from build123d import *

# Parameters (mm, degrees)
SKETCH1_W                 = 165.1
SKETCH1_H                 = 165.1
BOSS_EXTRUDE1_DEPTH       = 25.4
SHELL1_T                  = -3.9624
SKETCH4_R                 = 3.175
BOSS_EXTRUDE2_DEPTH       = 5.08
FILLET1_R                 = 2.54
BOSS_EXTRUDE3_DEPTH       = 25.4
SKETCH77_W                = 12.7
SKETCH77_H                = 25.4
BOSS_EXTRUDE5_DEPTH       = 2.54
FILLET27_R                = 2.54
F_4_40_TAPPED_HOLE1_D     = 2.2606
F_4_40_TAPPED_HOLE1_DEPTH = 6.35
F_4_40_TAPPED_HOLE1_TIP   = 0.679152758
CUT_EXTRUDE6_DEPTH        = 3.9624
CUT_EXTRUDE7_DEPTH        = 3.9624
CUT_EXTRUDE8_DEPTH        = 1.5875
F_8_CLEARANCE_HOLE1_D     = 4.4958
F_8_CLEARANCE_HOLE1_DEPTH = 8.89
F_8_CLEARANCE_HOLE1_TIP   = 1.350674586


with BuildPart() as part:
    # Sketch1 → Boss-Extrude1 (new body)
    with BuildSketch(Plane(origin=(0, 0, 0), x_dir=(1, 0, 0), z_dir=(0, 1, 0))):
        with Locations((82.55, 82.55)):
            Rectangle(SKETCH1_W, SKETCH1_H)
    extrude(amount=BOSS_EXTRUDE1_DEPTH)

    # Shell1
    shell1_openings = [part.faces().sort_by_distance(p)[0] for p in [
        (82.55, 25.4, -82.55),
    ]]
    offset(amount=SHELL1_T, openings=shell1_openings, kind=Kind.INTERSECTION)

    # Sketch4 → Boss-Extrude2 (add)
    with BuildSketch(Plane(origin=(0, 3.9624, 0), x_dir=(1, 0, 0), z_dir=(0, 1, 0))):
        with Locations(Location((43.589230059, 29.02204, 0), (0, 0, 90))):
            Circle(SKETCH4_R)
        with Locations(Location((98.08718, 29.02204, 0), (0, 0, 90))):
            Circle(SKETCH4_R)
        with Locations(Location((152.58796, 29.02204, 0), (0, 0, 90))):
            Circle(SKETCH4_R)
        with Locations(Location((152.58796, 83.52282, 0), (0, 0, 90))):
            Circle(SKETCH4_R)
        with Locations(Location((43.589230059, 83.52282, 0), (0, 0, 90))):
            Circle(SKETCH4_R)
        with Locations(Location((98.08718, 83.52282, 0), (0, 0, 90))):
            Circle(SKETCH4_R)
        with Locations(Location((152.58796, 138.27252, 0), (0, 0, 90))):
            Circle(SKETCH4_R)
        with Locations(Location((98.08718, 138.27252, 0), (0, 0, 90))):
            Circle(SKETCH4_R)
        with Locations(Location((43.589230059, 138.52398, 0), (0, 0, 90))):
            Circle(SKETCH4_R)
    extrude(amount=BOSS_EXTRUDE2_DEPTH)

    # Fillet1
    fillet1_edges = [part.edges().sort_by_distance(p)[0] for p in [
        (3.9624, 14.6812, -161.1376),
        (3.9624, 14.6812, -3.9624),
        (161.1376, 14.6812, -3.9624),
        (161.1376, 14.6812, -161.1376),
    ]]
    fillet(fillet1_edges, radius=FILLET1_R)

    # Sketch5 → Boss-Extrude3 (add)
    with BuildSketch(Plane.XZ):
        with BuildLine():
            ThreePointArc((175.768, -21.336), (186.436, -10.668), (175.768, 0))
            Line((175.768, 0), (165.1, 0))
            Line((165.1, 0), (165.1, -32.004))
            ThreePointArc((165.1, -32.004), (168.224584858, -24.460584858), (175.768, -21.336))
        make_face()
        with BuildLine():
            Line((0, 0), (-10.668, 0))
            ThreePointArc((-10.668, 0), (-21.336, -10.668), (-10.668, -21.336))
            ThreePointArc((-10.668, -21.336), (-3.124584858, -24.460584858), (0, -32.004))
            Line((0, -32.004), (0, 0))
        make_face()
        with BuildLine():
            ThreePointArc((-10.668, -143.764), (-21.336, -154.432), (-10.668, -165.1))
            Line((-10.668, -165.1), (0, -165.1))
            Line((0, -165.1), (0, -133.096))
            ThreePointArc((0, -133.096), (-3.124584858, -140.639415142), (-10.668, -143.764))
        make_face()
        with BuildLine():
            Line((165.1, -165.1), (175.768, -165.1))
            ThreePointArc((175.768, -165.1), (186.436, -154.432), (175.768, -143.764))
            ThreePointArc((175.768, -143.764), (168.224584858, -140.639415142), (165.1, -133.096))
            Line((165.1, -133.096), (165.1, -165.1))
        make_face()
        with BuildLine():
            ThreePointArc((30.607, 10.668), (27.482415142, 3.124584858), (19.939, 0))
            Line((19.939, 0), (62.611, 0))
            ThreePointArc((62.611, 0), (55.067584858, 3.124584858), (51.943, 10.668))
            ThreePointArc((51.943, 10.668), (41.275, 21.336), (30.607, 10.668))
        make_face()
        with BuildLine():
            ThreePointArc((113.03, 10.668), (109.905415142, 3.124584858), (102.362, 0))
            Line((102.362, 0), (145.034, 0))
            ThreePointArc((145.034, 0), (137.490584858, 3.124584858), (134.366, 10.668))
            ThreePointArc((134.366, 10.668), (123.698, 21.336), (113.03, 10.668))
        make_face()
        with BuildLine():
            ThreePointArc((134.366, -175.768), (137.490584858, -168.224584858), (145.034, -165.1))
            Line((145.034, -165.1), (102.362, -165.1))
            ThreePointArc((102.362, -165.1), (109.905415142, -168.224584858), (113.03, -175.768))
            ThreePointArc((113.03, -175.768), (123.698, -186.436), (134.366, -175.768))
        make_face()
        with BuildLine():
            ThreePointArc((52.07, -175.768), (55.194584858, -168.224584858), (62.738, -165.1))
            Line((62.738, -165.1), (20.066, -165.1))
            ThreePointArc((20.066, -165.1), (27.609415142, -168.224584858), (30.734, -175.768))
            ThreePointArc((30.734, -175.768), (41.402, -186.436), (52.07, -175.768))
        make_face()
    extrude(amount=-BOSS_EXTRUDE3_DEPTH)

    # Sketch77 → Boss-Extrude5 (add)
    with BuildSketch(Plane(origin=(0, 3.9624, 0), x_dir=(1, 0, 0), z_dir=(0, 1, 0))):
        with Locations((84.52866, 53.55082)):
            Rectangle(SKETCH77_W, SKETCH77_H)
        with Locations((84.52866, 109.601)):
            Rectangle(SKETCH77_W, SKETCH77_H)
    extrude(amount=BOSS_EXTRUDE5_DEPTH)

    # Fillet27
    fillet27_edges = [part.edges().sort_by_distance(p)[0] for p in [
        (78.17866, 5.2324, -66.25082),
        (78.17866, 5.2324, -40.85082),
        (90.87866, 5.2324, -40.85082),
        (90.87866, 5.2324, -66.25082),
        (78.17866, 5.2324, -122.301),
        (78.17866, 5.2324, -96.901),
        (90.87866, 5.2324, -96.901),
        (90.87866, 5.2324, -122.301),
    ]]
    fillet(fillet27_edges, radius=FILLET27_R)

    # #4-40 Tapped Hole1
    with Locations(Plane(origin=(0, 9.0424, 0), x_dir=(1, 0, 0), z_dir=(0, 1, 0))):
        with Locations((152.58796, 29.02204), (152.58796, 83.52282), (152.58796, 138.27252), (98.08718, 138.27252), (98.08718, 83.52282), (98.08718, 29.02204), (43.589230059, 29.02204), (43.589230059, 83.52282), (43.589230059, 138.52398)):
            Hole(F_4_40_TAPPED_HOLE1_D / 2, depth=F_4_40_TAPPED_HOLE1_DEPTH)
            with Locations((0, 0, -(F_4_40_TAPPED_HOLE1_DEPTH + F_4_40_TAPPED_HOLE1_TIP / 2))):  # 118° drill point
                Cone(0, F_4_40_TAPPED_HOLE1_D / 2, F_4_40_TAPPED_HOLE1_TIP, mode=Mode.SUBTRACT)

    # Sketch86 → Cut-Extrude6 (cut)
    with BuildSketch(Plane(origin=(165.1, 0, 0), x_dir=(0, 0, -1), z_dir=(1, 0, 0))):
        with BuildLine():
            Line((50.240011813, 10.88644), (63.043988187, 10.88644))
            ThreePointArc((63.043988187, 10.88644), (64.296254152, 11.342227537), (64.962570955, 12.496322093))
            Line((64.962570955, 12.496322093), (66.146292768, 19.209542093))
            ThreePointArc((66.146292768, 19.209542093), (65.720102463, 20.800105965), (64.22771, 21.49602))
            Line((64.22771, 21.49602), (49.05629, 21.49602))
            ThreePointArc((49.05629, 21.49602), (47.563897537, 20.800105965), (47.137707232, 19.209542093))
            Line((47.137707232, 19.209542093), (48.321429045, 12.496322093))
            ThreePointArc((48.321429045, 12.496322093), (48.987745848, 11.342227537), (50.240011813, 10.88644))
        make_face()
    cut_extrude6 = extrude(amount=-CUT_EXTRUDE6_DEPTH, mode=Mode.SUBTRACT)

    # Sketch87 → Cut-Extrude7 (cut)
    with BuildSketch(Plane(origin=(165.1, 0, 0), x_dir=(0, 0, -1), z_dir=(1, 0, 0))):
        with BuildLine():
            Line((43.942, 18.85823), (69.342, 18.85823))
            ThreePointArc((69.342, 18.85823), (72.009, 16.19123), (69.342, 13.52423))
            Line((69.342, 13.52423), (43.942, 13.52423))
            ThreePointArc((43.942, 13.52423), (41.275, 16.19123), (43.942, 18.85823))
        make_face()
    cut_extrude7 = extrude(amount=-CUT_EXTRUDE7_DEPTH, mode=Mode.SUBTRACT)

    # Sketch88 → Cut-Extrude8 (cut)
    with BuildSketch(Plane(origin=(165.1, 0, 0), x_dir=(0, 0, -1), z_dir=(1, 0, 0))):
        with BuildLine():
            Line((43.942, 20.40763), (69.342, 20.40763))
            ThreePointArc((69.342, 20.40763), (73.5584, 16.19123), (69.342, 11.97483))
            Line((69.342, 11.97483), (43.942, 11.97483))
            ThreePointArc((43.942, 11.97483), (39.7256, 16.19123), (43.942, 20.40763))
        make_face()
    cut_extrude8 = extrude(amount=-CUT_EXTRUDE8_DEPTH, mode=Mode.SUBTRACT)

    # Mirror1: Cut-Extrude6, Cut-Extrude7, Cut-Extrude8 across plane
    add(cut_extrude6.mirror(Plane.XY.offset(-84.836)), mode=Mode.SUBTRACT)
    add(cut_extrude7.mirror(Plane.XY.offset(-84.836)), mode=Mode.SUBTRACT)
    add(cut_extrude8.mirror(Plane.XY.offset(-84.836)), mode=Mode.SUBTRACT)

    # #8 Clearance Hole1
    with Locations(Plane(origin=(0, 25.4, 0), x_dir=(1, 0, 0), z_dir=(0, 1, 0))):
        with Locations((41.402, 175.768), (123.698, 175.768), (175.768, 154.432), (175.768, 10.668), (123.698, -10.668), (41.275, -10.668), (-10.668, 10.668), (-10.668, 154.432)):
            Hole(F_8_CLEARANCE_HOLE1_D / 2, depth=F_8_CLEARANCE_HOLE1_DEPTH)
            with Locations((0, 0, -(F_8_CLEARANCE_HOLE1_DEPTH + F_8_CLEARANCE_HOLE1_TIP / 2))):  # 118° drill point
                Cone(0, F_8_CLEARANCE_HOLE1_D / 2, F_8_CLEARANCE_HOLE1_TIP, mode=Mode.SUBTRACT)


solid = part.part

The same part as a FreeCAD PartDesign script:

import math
import FreeCAD as App
import Part
import Sketcher
from FreeCAD import Vector
Q = App.Units.Quantity


def edges_at(feature, points):
    """Names of the edges that pass closest to the given points."""
    edges = feature.Shape.Edges
    near = lambda p: min(range(len(edges)), key=lambda i: edges[i].distToShape(Part.Vertex(*p))[0])
    return sorted({f"Edge{near(p) + 1}" for p in points})


def faces_at(feature, points):
    """Names of the faces that lie closest to the given points."""
    faces = feature.Shape.Faces
    near = lambda p: min(range(len(faces)), key=lambda i: faces[i].distToShape(Part.Vertex(*p))[0])
    return sorted({f"Face{near(p) + 1}" for p in points})


def add_polygon(sketch, points):
    """Adds a closed chain of lines whose ends are joined by coincident constraints."""
    first, n = sketch.GeometryCount, len(points)
    for a, b in zip(points, points[1:] + points[:1]):
        sketch.addGeometry(Part.LineSegment(App.Vector(*a, 0), App.Vector(*b, 0)), False)
    for i in range(n):
        sketch.addConstraint(Sketcher.Constraint("Coincident", first + i, 2, first + (i + 1) % n, 1))

doc = App.newDocument("Part")
body = doc.addObject("PartDesign::Body", "Body")

sketch1 = body.newObject("Sketcher::SketchObject", "Sketch")
sketch1.AttachmentSupport = (doc.getObject("XZ_Plane"), [""])
sketch1.MapMode = "FlatFace"
add_polygon(sketch1, [(0, -165), (0, 0), (165, 0), (165, -165)])
sketch1.addConstraint([
    Sketcher.Constraint("Vertical", 0),
    Sketcher.Constraint("Horizontal", 1),
    Sketcher.Constraint("Vertical", 2),
    Sketcher.Constraint("Horizontal", 3),
    Sketcher.Constraint("Coincident", 0, 2, -1, 1),
    Sketcher.Constraint("Equal", 3, 0),
    Sketcher.Constraint("DistanceX", 1, 1, 1, 2, Q("6.5 in")),
])
pad1 = body.newObject("PartDesign::Pad", "Pad")
pad1.Profile = sketch1
pad1.Length = Q("1 in")
pad1.Reversed = True
doc.recompute()

thickness = body.newObject("PartDesign::Thickness", "Thickness")
thickness.Base = (pad1, faces_at(pad1, [(82.55, 25.4, -82.55)]))
thickness.Value = Q("0.156 in")
thickness.Reversed = True
thickness.Join = "Intersection"

sketch2 = body.newObject("Sketcher::SketchObject", "Sketch001")
sketch2.AttachmentSupport = (doc.getObject("XZ_Plane"), [""])
sketch2.MapMode = "FlatFace"
sketch2.AttachmentOffset = App.Placement(Vector(0, 0, -0.156 * 25.4), App.Rotation())
sketch2.addGeometry([
    Part.Circle(Vector(43.6, -29, 0), Vector(0, 0, 1), 3.2),
    Part.Circle(Vector(98.1, -29, 0), Vector(0, 0, 1), 3.2),
    Part.Circle(Vector(152.6, -29, 0), Vector(0, 0, 1), 3.2),
    Part.Circle(Vector(152.6, -83.5, 0), Vector(0, 0, 1), 3.2),
    Part.Circle(Vector(43.6, -83.5, 0), Vector(0, 0, 1), 3.2),
    Part.Circle(Vector(98.1, -83.5, 0), Vector(0, 0, 1), 3.2),
    Part.Circle(Vector(152.6, -138.3, 0), Vector(0, 0, 1), 3.2),
    Part.Circle(Vector(98.1, -138.3, 0), Vector(0, 0, 1), 3.2),
    Part.Circle(Vector(43.6, -138.5, 0), Vector(0, 0, 1), 3.2),
], False)
sketch2.addConstraint([
    Sketcher.Constraint("Equal", 0, 1),
    Sketcher.Constraint("Equal", 1, 2),
    Sketcher.Constraint("Equal", 2, 3),
    Sketcher.Constraint("Equal", 3, 4),
    Sketcher.Constraint("Equal", 4, 5),
    Sketcher.Constraint("Equal", 5, 6),
    Sketcher.Constraint("Equal", 6, 7),
    Sketcher.Constraint("Equal", 7, 8),
    Sketcher.Constraint("Horizontal", 0, 3, 1, 3),
    Sketcher.Constraint("Horizontal", 1, 3, 2, 3),
    Sketcher.Constraint("Horizontal", 3, 3, 4, 3),
    Sketcher.Constraint("Horizontal", 4, 3, 5, 3),
    Sketcher.Constraint("Horizontal", 6, 3, 7, 3),
    Sketcher.Constraint("Vertical", 2, 3, 3, 3),
    Sketcher.Constraint("Vertical", 0, 3, 4, 3),
    Sketcher.Constraint("Vertical", 1, 3, 5, 3),
    Sketcher.Constraint("Vertical", 3, 3, 6, 3),
    Sketcher.Constraint("Vertical", 5, 3, 7, 3),
    Sketcher.Constraint("Vertical", 4, 3, 8, 3),
    Sketcher.Constraint("Diameter", 0, Q("0.25 in")),
    Sketcher.Constraint("DistanceY", 0, 3, -1, 1, Q("1.1426 in")),
    Sketcher.Constraint("DistanceX", -1, 1, 1, 3, Q("3.8617 in")),
    Sketcher.Constraint("DistanceX", -1, 1, 2, 3, Q("6.0074 in")),
    Sketcher.Constraint("DistanceY", 3, 3, -1, 1, Q("3.2883 in")),
    Sketcher.Constraint("DistanceY", 6, 3, -1, 1, Q("5.4438 in")),
    Sketcher.Constraint("DistanceY", 8, 3, -1, 1, Q("5.4537 in")),
    Sketcher.Constraint("DistanceX", -1, 1, 0, 3, 43.58923),
])
pad2 = body.newObject("PartDesign::Pad", "Pad001")
pad2.Profile = sketch2
pad2.Length = Q("0.2 in")
pad2.Reversed = True
doc.recompute()

fillet = body.newObject("PartDesign::Fillet", "Fillet")
fillet.Base = (pad2, edges_at(pad2, [
    (3.962, 14.681, -161.138),
    (3.962, 14.681, -3.962),
    (161.138, 14.681, -3.962),
    (161.138, 14.681, -161.138),
]))
fillet.Radius = Q("0.1 in")

sketch3 = body.newObject("Sketcher::SketchObject", "Sketch002")
sketch3.AttachmentSupport = (doc.getObject("XZ_Plane"), [""])
sketch3.MapMode = "FlatFace"
sketch3.addGeometry([
    Part.ArcOfCircle(Part.Circle(Vector(176, -11, 0), Vector(0, 0, 1), 11), math.radians(-90), math.radians(90)),
    Part.LineSegment(Vector(176, 0, 0), Vector(165, 0, 0)),
    Part.LineSegment(Vector(165, 0, 0), Vector(165, -32, 0)),
    Part.ArcOfCircle(Part.Circle(Vector(176, -32, 0), Vector(0, 0, 1), 11), math.radians(90), math.radians(180)),
    Part.LineSegment(Vector(0, 0, 0), Vector(-11, 0, 0)),
    Part.ArcOfCircle(Part.Circle(Vector(-11, -11, 0), Vector(0, 0, 1), 11), math.radians(90), math.radians(270)),
    Part.ArcOfCircle(Part.Circle(Vector(-11, -32, 0), Vector(0, 0, 1), 11), math.radians(0), math.radians(90)),
    Part.LineSegment(Vector(0, -32, 0), Vector(0, 0, 0)),
    Part.ArcOfCircle(Part.Circle(Vector(-11, -154, 0), Vector(0, 0, 1), 11), math.radians(90), math.radians(270)),
    Part.LineSegment(Vector(-11, -165, 0), Vector(0, -165, 0)),
    Part.LineSegment(Vector(0, -165, 0), Vector(0, -133, 0)),
    Part.ArcOfCircle(Part.Circle(Vector(-11, -133, 0), Vector(0, 0, 1), 11), math.radians(-90), math.radians(0)),
    Part.LineSegment(Vector(165, -165, 0), Vector(176, -165, 0)),
    Part.ArcOfCircle(Part.Circle(Vector(176, -154, 0), Vector(0, 0, 1), 11), math.radians(-90), math.radians(90)),
    Part.ArcOfCircle(Part.Circle(Vector(176, -133, 0), Vector(0, 0, 1), 11), math.radians(180), math.radians(270)),
    Part.LineSegment(Vector(165, -133, 0), Vector(165, -165, 0)),
    Part.ArcOfCircle(Part.Circle(Vector(20, 11, 0), Vector(0, 0, 1), 11), math.radians(-90), math.radians(0)),
    Part.LineSegment(Vector(20, 0, 0), Vector(63, 0, 0)),
    Part.ArcOfCircle(Part.Circle(Vector(63, 11, 0), Vector(0, 0, 1), 11), math.radians(180), math.radians(270)),
    Part.ArcOfCircle(Part.Circle(Vector(41, 11, 0), Vector(0, 0, 1), 11), math.radians(0), math.radians(180)),
    Part.ArcOfCircle(Part.Circle(Vector(102, 11, 0), Vector(0, 0, 1), 11), math.radians(-90), math.radians(0)),
    Part.LineSegment(Vector(102, 0, 0), Vector(145, 0, 0)),
    Part.ArcOfCircle(Part.Circle(Vector(145, 11, 0), Vector(0, 0, 1), 11), math.radians(180), math.radians(270)),
    Part.ArcOfCircle(Part.Circle(Vector(124, 11, 0), Vector(0, 0, 1), 11), math.radians(0), math.radians(180)),
    Part.ArcOfCircle(Part.Circle(Vector(145, -176, 0), Vector(0, 0, 1), 11), math.radians(90), math.radians(180)),
    Part.LineSegment(Vector(145, -165, 0), Vector(102, -165, 0)),
    Part.ArcOfCircle(Part.Circle(Vector(102, -176, 0), Vector(0, 0, 1), 11), math.radians(0), math.radians(90)),
    Part.ArcOfCircle(Part.Circle(Vector(124, -176, 0), Vector(0, 0, 1), 11), math.radians(180), math.radians(360)),
    Part.ArcOfCircle(Part.Circle(Vector(63, -176, 0), Vector(0, 0, 1), 11), math.radians(90), math.radians(180)),
    Part.LineSegment(Vector(63, -165, 0), Vector(20, -165, 0)),
    Part.ArcOfCircle(Part.Circle(Vector(20, -176, 0), Vector(0, 0, 1), 11), math.radians(0), math.radians(90)),
    Part.ArcOfCircle(Part.Circle(Vector(41, -176, 0), Vector(0, 0, 1), 11), math.radians(180), math.radians(360)),
], False)
sketch3.addConstraint([
    Sketcher.Constraint("Tangent", 0, 2, 1, 1),
    Sketcher.Constraint("Coincident", 1, 2, 2, 1),
    Sketcher.Constraint("Tangent", 2, 2, 3, 2),
    Sketcher.Constraint("Tangent", 3, 1, 0, 1),
    Sketcher.Constraint("Tangent", 4, 2, 5, 1),
    Sketcher.Constraint("Tangent", 5, 2, 6, 2),
    Sketcher.Constraint("Tangent", 6, 1, 7, 1),
    Sketcher.Constraint("Coincident", 7, 2, 4, 1),
    Sketcher.Constraint("Tangent", 8, 2, 9, 1),
    Sketcher.Constraint("Coincident", 9, 2, 10, 1),
    Sketcher.Constraint("Tangent", 10, 2, 11, 2),
    Sketcher.Constraint("Tangent", 11, 1, 8, 1),
    Sketcher.Constraint("Tangent", 12, 2, 13, 1),
    Sketcher.Constraint("Tangent", 13, 2, 14, 2),
    Sketcher.Constraint("Tangent", 14, 1, 15, 1),
    Sketcher.Constraint("Coincident", 15, 2, 12, 1),
    Sketcher.Constraint("Tangent", 16, 1, 17, 1),
    Sketcher.Constraint("Tangent", 17, 2, 18, 2),
    Sketcher.Constraint("Tangent", 18, 1, 19, 1),
    Sketcher.Constraint("Tangent", 19, 2, 16, 2),
    Sketcher.Constraint("Tangent", 20, 1, 21, 1),
    Sketcher.Constraint("Tangent", 21, 2, 22, 2),
    Sketcher.Constraint("Tangent", 22, 1, 23, 1),
    Sketcher.Constraint("Tangent", 23, 2, 20, 2),
    Sketcher.Constraint("Tangent", 24, 1, 25, 1),
    Sketcher.Constraint("Tangent", 25, 2, 26, 2),
    Sketcher.Constraint("Tangent", 26, 1, 27, 1),
    Sketcher.Constraint("Tangent", 27, 2, 24, 2),
    Sketcher.Constraint("Tangent", 28, 1, 29, 1),
    Sketcher.Constraint("Tangent", 29, 2, 30, 2),
    Sketcher.Constraint("Tangent", 30, 1, 31, 1),
    Sketcher.Constraint("Tangent", 31, 2, 28, 2),
    Sketcher.Constraint("Horizontal", 1),
    Sketcher.Constraint("Vertical", 2),
    Sketcher.Constraint("Horizontal", 4),
    Sketcher.Constraint("Vertical", 7),
    Sketcher.Constraint("Horizontal", 9),
    Sketcher.Constraint("Vertical", 10),
    Sketcher.Constraint("Horizontal", 12),
    Sketcher.Constraint("Vertical", 15),
    Sketcher.Constraint("Horizontal", 17),
    Sketcher.Constraint("Horizontal", 21),
    Sketcher.Constraint("Horizontal", 25),
    Sketcher.Constraint("Horizontal", 29),
    Sketcher.Constraint("Coincident", 7, 2, -1, 1),
    Sketcher.Constraint("Equal", 0, 3),
    Sketcher.Constraint("Equal", 3, 5),
    Sketcher.Constraint("Equal", 5, 6),
    Sketcher.Constraint("Equal", 6, 8),
    Sketcher.Constraint("Equal", 8, 11),
    Sketcher.Constraint("Equal", 11, 13),
    Sketcher.Constraint("Equal", 13, 14),
    Sketcher.Constraint("Equal", 14, 16),
    Sketcher.Constraint("Equal", 16, 18),
    Sketcher.Constraint("Equal", 18, 19),
    Sketcher.Constraint("Equal", 19, 20),
    Sketcher.Constraint("Equal", 20, 22),
    Sketcher.Constraint("Equal", 22, 23),
    Sketcher.Constraint("Equal", 23, 24),
    Sketcher.Constraint("Equal", 24, 26),
    Sketcher.Constraint("Equal", 26, 27),
    Sketcher.Constraint("Equal", 27, 28),
    Sketcher.Constraint("Equal", 28, 30),
    Sketcher.Constraint("Equal", 30, 31),
    Sketcher.Constraint("PointOnObject", 0, 2, -1),
    Sketcher.Constraint("PointOnObject", 9, 2, -2),
    Sketcher.Constraint("PointOnObject", 16, 1, -1),
    Sketcher.Constraint("PointOnObject", 20, 1, -1),
    Sketcher.Constraint("Horizontal", 8, 3, 13, 3),
    Sketcher.Constraint("Horizontal", 18, 3, 19, 3),
    Sketcher.Constraint("Horizontal", 22, 3, 23, 3),
    Sketcher.Constraint("Horizontal", 26, 3, 27, 3),
    Sketcher.Constraint("Horizontal", 27, 3, 28, 3),
    Sketcher.Constraint("Horizontal", 30, 3, 31, 3),
    Sketcher.Constraint("Horizontal", 15, 2, 24, 1),
    Sketcher.Constraint("Vertical", 0, 3, 3, 3),
    Sketcher.Constraint("Vertical", 5, 3, 6, 3),
    Sketcher.Constraint("Vertical", 6, 3, 8, 3),
    Sketcher.Constraint("Vertical", 3, 3, 13, 3),
    Sketcher.Constraint("Vertical", 13, 3, 14, 3),
    Sketcher.Constraint("Vertical", 22, 3, 24, 3),
    Sketcher.Constraint("Radius", 0, Q("0.42 in")),
    Sketcher.Constraint("DistanceX", -1, 1, 1, 2, Q("6.5 in")),
    Sketcher.Constraint("DistanceY", 8, 2, -1, 1, Q("6.5 in")),
    Sketcher.Constraint("DistanceX", 28, 3, 27, 3, Q("2.4 in")),
    Sketcher.Constraint("DistanceX", -1, 1, 20, 3, Q("4.03 in")),
    Sketcher.Constraint("DistanceX", -1, 1, 16, 3, Q("0.785 in")),
])
pad3 = body.newObject("PartDesign::Pad", "Pad002")
pad3.Profile = sketch3
pad3.Length = Q("1 in")
pad3.Reversed = True

sketch4 = body.newObject("Sketcher::SketchObject", "Sketch003")
sketch4.AttachmentSupport = (doc.getObject("XZ_Plane"), [""])
sketch4.MapMode = "FlatFace"
sketch4.AttachmentOffset = App.Placement(Vector(0, 0, -0.156 * 25.4), App.Rotation())
add_polygon(sketch4, [(78, -66), (78, -41), (91, -41), (91, -66)])
add_polygon(sketch4, [(78, -122), (78, -97), (91, -97), (91, -122)])
sketch4.addConstraint([
    Sketcher.Constraint("Vertical", 0),
    Sketcher.Constraint("Horizontal", 1),
    Sketcher.Constraint("Vertical", 2),
    Sketcher.Constraint("Horizontal", 3),
    Sketcher.Constraint("Vertical", 4),
    Sketcher.Constraint("Horizontal", 5),
    Sketcher.Constraint("Vertical", 6),
    Sketcher.Constraint("Horizontal", 7),
    Sketcher.Constraint("Vertical", 3, 2, 4, 2),
    Sketcher.Constraint("Vertical", 2, 2, 5, 2),
    Sketcher.Constraint("Equal", 2, 4),
    Sketcher.Constraint("DistanceY", 0, 1, 0, 2, Q("1 in")),
    Sketcher.Constraint("DistanceX", 1, 1, 1, 2, Q("0.5 in")),
    Sketcher.Constraint("DistanceY", 4, 2, -1, 1, Q("3.815 in")),
    Sketcher.Constraint("DistanceX", -1, 1, 0, 2, Q("3.0779 in")),
    Sketcher.Constraint("DistanceY", 0, 2, -1, 1, Q("1.6083 in")),
])
pad4 = body.newObject("PartDesign::Pad", "Pad003")
pad4.Profile = sketch4
pad4.Length = Q("0.1 in")
pad4.Reversed = True
doc.recompute()

fillet2 = body.newObject("PartDesign::Fillet", "Fillet001")
fillet2.Base = (pad4, edges_at(pad4, [
    (78.179, 5.232, -66.251),
    (78.179, 5.232, -40.851),
    (90.879, 5.232, -40.851),
    (90.879, 5.232, -66.251),
    (78.179, 5.232, -122.301),
    (78.179, 5.232, -96.901),
    (90.879, 5.232, -96.901),
    (90.879, 5.232, -122.301),
]))
fillet2.Radius = Q("0.1 in")

sketch5 = body.newObject("Sketcher::SketchObject", "Sketch004")
sketch5.AttachmentSupport = (doc.getObject("XZ_Plane"), [""])
sketch5.MapMode = "FlatFace"
sketch5.AttachmentOffset = App.Placement(Vector(0, 0, -0.356 * 25.4), App.Rotation())
sketch5.addGeometry([
    Part.Circle(Vector(152.6, -29, 0), Vector(0, 0, 1), 1.1),
    Part.Circle(Vector(152.6, -83.5, 0), Vector(0, 0, 1), 1.1),
    Part.Circle(Vector(152.6, -138.3, 0), Vector(0, 0, 1), 1.1),
    Part.Circle(Vector(98.1, -138.3, 0), Vector(0, 0, 1), 1.1),
    Part.Circle(Vector(98.1, -83.5, 0), Vector(0, 0, 1), 1.1),
    Part.Circle(Vector(98.1, -29, 0), Vector(0, 0, 1), 1.1),
    Part.Circle(Vector(43.6, -29, 0), Vector(0, 0, 1), 1.1),
    Part.Circle(Vector(43.6, -83.5, 0), Vector(0, 0, 1), 1.1),
    Part.Circle(Vector(43.6, -138.5, 0), Vector(0, 0, 1), 1.1),
], False)
sketch5.addConstraint([
    Sketcher.Constraint("Equal", 0, 1),
    Sketcher.Constraint("Equal", 1, 2),
    Sketcher.Constraint("Equal", 2, 3),
    Sketcher.Constraint("Equal", 3, 4),
    Sketcher.Constraint("Equal", 4, 5),
    Sketcher.Constraint("Equal", 5, 6),
    Sketcher.Constraint("Equal", 6, 7),
    Sketcher.Constraint("Equal", 7, 8),
    Sketcher.Constraint("Horizontal", 2, 3, 3, 3),
    Sketcher.Constraint("Horizontal", 1, 3, 4, 3),
    Sketcher.Constraint("Horizontal", 0, 3, 5, 3),
    Sketcher.Constraint("Horizontal", 5, 3, 6, 3),
    Sketcher.Constraint("Horizontal", 4, 3, 7, 3),
    Sketcher.Constraint("Vertical", 0, 3, 1, 3),
    Sketcher.Constraint("Vertical", 1, 3, 2, 3),
    Sketcher.Constraint("Vertical", 3, 3, 4, 3),
    Sketcher.Constraint("Vertical", 4, 3, 5, 3),
    Sketcher.Constraint("Vertical", 6, 3, 7, 3),
    Sketcher.Constraint("Vertical", 7, 3, 8, 3),
    Sketcher.Constraint("Diameter", 0, Q("0.089 in")),
    Sketcher.Constraint("DistanceX", -1, 1, 0, 3, Q("6.0074 in")),
    Sketcher.Constraint("DistanceY", 0, 3, -1, 1, Q("1.1426 in")),
    Sketcher.Constraint("DistanceY", 1, 3, -1, 1, Q("3.2883 in")),
    Sketcher.Constraint("DistanceY", 2, 3, -1, 1, Q("5.4438 in")),
    Sketcher.Constraint("DistanceX", -1, 1, 3, 3, Q("3.8617 in")),
    Sketcher.Constraint("DistanceY", 8, 3, -1, 1, Q("5.4537 in")),
    Sketcher.Constraint("DistanceX", -1, 1, 6, 3, 43.58923),
])
doc.recompute()
hole = body.newObject("PartDesign::Hole", "Hole")
hole.Profile = sketch5
hole.ThreadType = "None"
hole.Diameter = Q("0.089 in")
hole.DepthType = "Dimension"
hole.Depth = Q("0.25 in")
hole.DrillPoint = "Angled"
hole.DrillPointAngle = 118
hole.Reversed = True

sketch6 = body.newObject("Sketcher::SketchObject", "Sketch005")
sketch6.AttachmentSupport = (doc.getObject("YZ_Plane"), [""])
sketch6.MapMode = "FlatFace"
sketch6.AttachmentOffset = App.Placement(Vector(0, 0, 6.5 * 25.4), App.Rotation())
sketch6.addGeometry([
    Part.LineSegment(Vector(10.9, -50.2, 0), Vector(10.9, -63, 0)),
    Part.ArcOfCircle(Part.Circle(Vector(12.8, -63, 0), Vector(0, 0, 1), 1.9), math.radians(-180), math.radians(-100)),
    Part.LineSegment(Vector(12.5, -65, 0), Vector(19.2, -66.1, 0)),
    Part.ArcOfCircle(Part.Circle(Vector(19.5, -64.2, 0), Vector(0, 0, 1), 1.9), math.radians(-100), math.radians(0)),
    Part.LineSegment(Vector(21.5, -64.2, 0), Vector(21.5, -49.1, 0)),
    Part.ArcOfCircle(Part.Circle(Vector(19.5, -49.1, 0), Vector(0, 0, 1), 1.9), math.radians(0), math.radians(100)),
    Part.LineSegment(Vector(19.2, -47.1, 0), Vector(12.5, -48.3, 0)),
    Part.ArcOfCircle(Part.Circle(Vector(12.8, -50.2, 0), Vector(0, 0, 1), 1.9), math.radians(100), math.radians(180)),
], False)
sketch6.addConstraint([
    Sketcher.Constraint("Tangent", 0, 2, 1, 1),
    Sketcher.Constraint("Tangent", 1, 2, 2, 1),
    Sketcher.Constraint("Tangent", 2, 2, 3, 1),
    Sketcher.Constraint("Tangent", 3, 2, 4, 1),
    Sketcher.Constraint("Tangent", 4, 2, 5, 1),
    Sketcher.Constraint("Tangent", 5, 2, 6, 1),
    Sketcher.Constraint("Tangent", 6, 2, 7, 1),
    Sketcher.Constraint("Tangent", 7, 2, 0, 1),
    Sketcher.Constraint("Vertical", 0),
    Sketcher.Constraint("Vertical", 4),
    Sketcher.Constraint("Equal", 1, 3),
    Sketcher.Constraint("Equal", 3, 5),
    Sketcher.Constraint("Equal", 5, 7),
    Sketcher.Constraint("Vertical", 2, 2, 5, 2),
    Sketcher.Constraint("Angle", 2, Q("-10 deg")),
    Sketcher.Constraint("Radius", 1, Q("0.0767 in")),
    Sketcher.Constraint("DistanceY", 4, 1, 4, 2, Q("0.5973 in")),
    Sketcher.Constraint("DistanceX", 0, 2, 3, 3, Q("0.341 in")),
    Sketcher.Constraint("DistanceX", -1, 1, 1, 3, Q("0.5053 in")),
    Sketcher.Constraint("DistanceY", 1, 3, -1, 1, 63.043988),
])
pocket1 = body.newObject("PartDesign::Pocket", "Pocket")
pocket1.Profile = sketch6
pocket1.Length = Q("0.156 in")

sketch7 = body.newObject("Sketcher::SketchObject", "Sketch006")
sketch7.AttachmentSupport = (doc.getObject("YZ_Plane"), [""])
sketch7.MapMode = "FlatFace"
sketch7.AttachmentOffset = App.Placement(Vector(0, 0, 6.5 * 25.4), App.Rotation())
sketch7.addGeometry([
    Part.LineSegment(Vector(18.9, -69.3, 0), Vector(18.9, -43.9, 0)),
    Part.ArcOfCircle(Part.Circle(Vector(16.2, -43.9, 0), Vector(0, 0, 1), 2.7), math.radians(0), math.radians(180)),
    Part.LineSegment(Vector(13.5, -43.9, 0), Vector(13.5, -69.3, 0)),
    Part.ArcOfCircle(Part.Circle(Vector(16.2, -69.3, 0), Vector(0, 0, 1), 2.7), math.radians(180), math.radians(360)),
], False)
sketch7.addConstraint([
    Sketcher.Constraint("Tangent", 0, 2, 1, 1),
    Sketcher.Constraint("Tangent", 1, 2, 2, 1),
    Sketcher.Constraint("Tangent", 2, 2, 3, 1),
    Sketcher.Constraint("Tangent", 3, 2, 0, 1),
    Sketcher.Constraint("Vertical", 0),
    Sketcher.Constraint("Vertical", 2),
    Sketcher.Constraint("DistanceY", 0, 1, 0, 2, Q("1 in")),
    Sketcher.Constraint("Radius", 1, Q("0.105 in")),
    Sketcher.Constraint("DistanceY", 1, 3, -1, 1, Q("1.73 in")),
    Sketcher.Constraint("DistanceX", -1, 1, 1, 3, 16.19123),
])
pocket2 = body.newObject("PartDesign::Pocket", "Pocket001")
pocket2.Profile = sketch7
pocket2.Length = Q("0.156 in")

sketch8 = body.newObject("Sketcher::SketchObject", "Sketch007")
sketch8.AttachmentSupport = (doc.getObject("YZ_Plane"), [""])
sketch8.MapMode = "FlatFace"
sketch8.AttachmentOffset = App.Placement(Vector(0, 0, 6.5 * 25.4), App.Rotation())
sketch8.addGeometry([
    Part.LineSegment(Vector(20.4, -69.3, 0), Vector(20.4, -43.9, 0)),
    Part.ArcOfCircle(Part.Circle(Vector(16.2, -43.9, 0), Vector(0, 0, 1), 4.2), math.radians(0), math.radians(180)),
    Part.LineSegment(Vector(12, -43.9, 0), Vector(12, -69.3, 0)),
    Part.ArcOfCircle(Part.Circle(Vector(16.2, -69.3, 0), Vector(0, 0, 1), 4.2), math.radians(180), math.radians(360)),
], False)
sketch8.addConstraint([
    Sketcher.Constraint("Tangent", 0, 2, 1, 1),
    Sketcher.Constraint("Tangent", 1, 2, 2, 1),
    Sketcher.Constraint("Tangent", 2, 2, 3, 1),
    Sketcher.Constraint("Tangent", 3, 2, 0, 1),
    Sketcher.Constraint("Vertical", 0),
    Sketcher.Constraint("Vertical", 2),
    Sketcher.Constraint("DistanceY", 0, 1, 0, 2, Q("1 in")),
    Sketcher.Constraint("Radius", 1, Q("0.166 in")),
    Sketcher.Constraint("DistanceY", 1, 3, -1, 1, Q("1.73 in")),
    Sketcher.Constraint("DistanceX", -1, 1, 1, 3, 16.19123),
])
pocket3 = body.newObject("PartDesign::Pocket", "Pocket002")
pocket3.Profile = sketch8
pocket3.Length = Q("0.0625 in")
doc.recompute()

datumplane = body.newObject("PartDesign::Plane", "DatumPlane")
datumplane.AttachmentSupport = (doc.getObject("XY_Plane"), [""])
datumplane.MapMode = "FlatFace"
datumplane.AttachmentOffset = App.Placement(Vector(0, 0, -3.34 * 25.4), App.Rotation())
mirrored = body.newObject("PartDesign::Mirrored", "Mirrored")
mirrored.Originals = [pocket1, pocket2, pocket3]
mirrored.MirrorPlane = (datumplane, [""])
body.Tip = mirrored

sketch9 = body.newObject("Sketcher::SketchObject", "Sketch008")
sketch9.AttachmentSupport = (doc.getObject("XZ_Plane"), [""])
sketch9.MapMode = "FlatFace"
sketch9.AttachmentOffset = App.Placement(Vector(0, 0, -1 * 25.4), App.Rotation())
sketch9.addGeometry([
    Part.Circle(Vector(41.4, -175.8, 0), Vector(0, 0, 1), 2.2),
    Part.Circle(Vector(123.7, -175.8, 0), Vector(0, 0, 1), 2.2),
    Part.Circle(Vector(175.8, -154.4, 0), Vector(0, 0, 1), 2.2),
    Part.Circle(Vector(175.8, -10.7, 0), Vector(0, 0, 1), 2.2),
    Part.Circle(Vector(123.7, 10.7, 0), Vector(0, 0, 1), 2.2),
    Part.Circle(Vector(41.3, 10.7, 0), Vector(0, 0, 1), 2.2),
    Part.Circle(Vector(-10.7, -10.7, 0), Vector(0, 0, 1), 2.2),
    Part.Circle(Vector(-10.7, -154.4, 0), Vector(0, 0, 1), 2.2),
], False)
sketch9.addConstraint([
    Sketcher.Constraint("Equal", 0, 1),
    Sketcher.Constraint("Equal", 1, 2),
    Sketcher.Constraint("Equal", 2, 3),
    Sketcher.Constraint("Equal", 3, 4),
    Sketcher.Constraint("Equal", 4, 5),
    Sketcher.Constraint("Equal", 5, 6),
    Sketcher.Constraint("Equal", 6, 7),
    Sketcher.Constraint("Horizontal", 0, 3, 1, 3),
    Sketcher.Constraint("Horizontal", 4, 3, 5, 3),
    Sketcher.Constraint("Horizontal", 3, 3, 6, 3),
    Sketcher.Constraint("Horizontal", 2, 3, 7, 3),
    Sketcher.Constraint("Vertical", 2, 3, 3, 3),
    Sketcher.Constraint("Vertical", 1, 3, 4, 3),
    Sketcher.Constraint("Vertical", 6, 3, 7, 3),
    Sketcher.Constraint("Diameter", 0, Q("0.177 in")),
    Sketcher.Constraint("DistanceY", 1, 3, 3, 3, Q("6.5 in")),
    Sketcher.Constraint("DistanceY", 2, 3, 4, 3, Q("6.5 in")),
    Sketcher.Constraint("DistanceX", -1, 1, 0, 3, Q("1.63 in")),
    Sketcher.Constraint("DistanceY", 0, 3, -1, 1, Q("6.92 in")),
    Sketcher.Constraint("DistanceX", -1, 1, 1, 3, Q("4.87 in")),
    Sketcher.Constraint("DistanceX", -1, 1, 2, 3, Q("6.92 in")),
    Sketcher.Constraint("DistanceY", 2, 3, -1, 1, Q("6.08 in")),
    Sketcher.Constraint("DistanceX", 6, 3, -1, 1, Q("0.42 in")),
    Sketcher.Constraint("DistanceX", -1, 1, 5, 3, Q("1.625 in")),
])
doc.recompute()
hole2 = body.newObject("PartDesign::Hole", "Hole001")
hole2.Profile = sketch9
hole2.ThreadType = "None"
hole2.Diameter = Q("0.177 in")
hole2.DepthType = "Dimension"
hole2.Depth = Q("0.35 in")
hole2.DrillPoint = "Angled"
hole2.DrillPointAngle = 118
hole2.Reversed = True

doc.recompute()
